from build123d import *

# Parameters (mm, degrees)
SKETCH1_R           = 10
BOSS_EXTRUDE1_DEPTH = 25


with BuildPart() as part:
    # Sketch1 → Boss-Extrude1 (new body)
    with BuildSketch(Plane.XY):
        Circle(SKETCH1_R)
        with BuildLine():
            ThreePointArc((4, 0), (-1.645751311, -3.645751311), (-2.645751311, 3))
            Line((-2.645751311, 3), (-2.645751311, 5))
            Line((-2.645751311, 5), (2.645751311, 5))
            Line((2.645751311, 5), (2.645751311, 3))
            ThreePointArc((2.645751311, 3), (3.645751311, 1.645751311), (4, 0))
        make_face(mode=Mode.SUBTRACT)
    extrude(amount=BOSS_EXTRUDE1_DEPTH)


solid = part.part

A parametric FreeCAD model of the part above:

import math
import FreeCAD as App
import Part
import Sketcher

V = App.Vector

doc = App.newDocument("Part")
body = doc.addObject("PartDesign::Body", "Body")

# Sketch on XY plane
sketch1 = body.newObject("Sketcher::SketchObject", "Sketch")
sketch1.AttachmentSupport = (doc.getObject("XY_Plane"), [""])
sketch1.MapMode = "FlatFace"
sketch1.addGeometry(Part.Circle(V(0, 0, 0), V(0, 0, 1), 10), False)
sketch1.addGeometry(Part.ArcOfCircle(Part.Circle(V(0, 0, 0), V(0, 0, 1), 4), math.radians(0), math.radians(48.590378)), False)
sketch1.addGeometry(Part.ArcOfCircle(Part.Circle(V(0, 0, 0), V(0, 0, 1), 4), math.radians(131.409622), math.radians(360)), False)
sketch1.addGeometry(Part.LineSegment(V(-2.645751, 3, 0), V(-2.645751, 5, 0)), False)
sketch1.addGeometry(Part.LineSegment(V(-2.645751, 5, 0), V(2.645751, 5, 0)), False)
sketch1.addGeometry(Part.LineSegment(V(2.645751, 5, 0), V(2.645751, 3, 0)), False)
sketch1.addConstraint(Sketcher.Constraint("Tangent", 1, 1, 2, 2))
sketch1.addConstraint(Sketcher.Constraint("Coincident", 2, 1, 3, 1))
sketch1.addConstraint(Sketcher.Constraint("Coincident", 3, 2, 4, 1))
sketch1.addConstraint(Sketcher.Constraint("Coincident", 4, 2, 5, 1))
sketch1.addConstraint(Sketcher.Constraint("Coincident", 5, 2, 1, 2))
sketch1.addConstraint(Sketcher.Constraint("Vertical", 3))
sketch1.addConstraint(Sketcher.Constraint("Horizontal", 4))
sketch1.addConstraint(Sketcher.Constraint("Vertical", 5))
sketch1.addConstraint(Sketcher.Constraint("Coincident", 0, 3, -1, 1))
sketch1.addConstraint(Sketcher.Constraint("Coincident", 1, 3, -1, 1))
sketch1.addConstraint(Sketcher.Constraint("Equal", 1, 2))
sketch1.addConstraint(Sketcher.Constraint("PointOnObject", 1, 1, -1))
sketch1.addConstraint(Sketcher.Constraint("Horizontal", 2, 1, 5, 2))
sketch1.addConstraint(Sketcher.Constraint("Diameter", 0, 20.0))
sketch1.addConstraint(Sketcher.Constraint("Radius", 1, 4.0))
sketch1.addConstraint(Sketcher.Constraint("DistanceY", 3, 1, 3, 2, 2.0))
sketch1.addConstraint(Sketcher.Constraint("DistanceY", -1, 1, 2, 1, 3.0))
pad1 = body.newObject("PartDesign::Pad", "Pad")
pad1.Profile = sketch1
pad1.Length = 25

doc.recompute()
